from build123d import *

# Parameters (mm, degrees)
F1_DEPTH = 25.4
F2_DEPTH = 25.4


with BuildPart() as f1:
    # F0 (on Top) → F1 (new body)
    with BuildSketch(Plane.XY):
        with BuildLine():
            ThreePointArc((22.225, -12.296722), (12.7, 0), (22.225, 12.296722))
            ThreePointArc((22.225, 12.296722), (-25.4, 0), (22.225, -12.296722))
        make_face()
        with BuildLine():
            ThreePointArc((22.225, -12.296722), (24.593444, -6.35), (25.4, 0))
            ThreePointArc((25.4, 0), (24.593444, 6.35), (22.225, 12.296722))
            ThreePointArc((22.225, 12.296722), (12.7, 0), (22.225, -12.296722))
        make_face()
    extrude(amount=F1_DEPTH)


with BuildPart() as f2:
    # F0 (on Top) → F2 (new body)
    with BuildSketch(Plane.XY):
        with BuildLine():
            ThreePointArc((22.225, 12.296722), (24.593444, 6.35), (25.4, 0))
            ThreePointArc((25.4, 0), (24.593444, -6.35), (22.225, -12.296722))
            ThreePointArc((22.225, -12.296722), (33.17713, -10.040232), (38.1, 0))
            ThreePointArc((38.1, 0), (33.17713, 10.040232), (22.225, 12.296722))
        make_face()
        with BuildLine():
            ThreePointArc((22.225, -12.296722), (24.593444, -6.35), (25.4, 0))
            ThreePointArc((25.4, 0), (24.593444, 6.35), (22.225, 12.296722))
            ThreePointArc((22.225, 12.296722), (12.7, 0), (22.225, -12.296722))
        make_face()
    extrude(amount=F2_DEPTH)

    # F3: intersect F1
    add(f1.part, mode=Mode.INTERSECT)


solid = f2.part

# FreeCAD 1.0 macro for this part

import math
import FreeCAD as App
import Part
import Sketcher
from FreeCAD import Vector
Q = App.Units.Quantity

doc = App.newDocument("Part")
body = doc.addObject("PartDesign::Body", "Body")

# Sketch on XY plane
sketch1 = body.newObject("Sketcher::SketchObject", "Sketch")
sketch1.AttachmentSupport = (doc.getObject("XY_Plane"), [""])
sketch1.MapMode = "FlatFace"
sketch1.addGeometry([
    Part.ArcOfCircle(Part.Circle(Vector(0, 0, 0), Vector(0, 0, 1), 25.4), math.radians(28.955024), math.radians(331.044976)),
    Part.ArcOfCircle(Part.Circle(Vector(-0.000006, 0.000002, 0), Vector(0, 0, 1), 25.400006), math.radians(-28.955021), math.radians(-0.000004)),
    Part.ArcOfCircle(Part.Circle(Vector(-0.000006, -0.000002, 0), Vector(0, 0, 1), 25.400006), math.radians(0.000004), math.radians(28.955021)),
], False)
sketch1.addConstraint([
    Sketcher.Constraint("Tangent", 0, 2, 1, 1),
    Sketcher.Constraint("Tangent", 1, 2, 2, 1),
    Sketcher.Constraint("Tangent", 2, 2, 0, 1),
    Sketcher.Constraint("Coincident", 0, 3, -1, 1),
    Sketcher.Constraint("PointOnObject", 1, 2, -1),
    Sketcher.Constraint("Vertical", 0, 2, 2, 2),
    Sketcher.Constraint("Radius", 0, Q("1 in")),
    Sketcher.Constraint("DistanceX", -1, 1, 0, 2, Q("0.875 in")),
])
pad1 = body.newObject("PartDesign::Pad", "Pad")
pad1.Profile = sketch1
pad1.Length = Q("1 in")
body2 = doc.addObject("PartDesign::Body", "Body001")

# Sketch on XY plane
sketch2 = body2.newObject("Sketcher::SketchObject", "Sketch001")
sketch2.AttachmentSupport = (doc.getObject("XY_Plane001"), [""])
sketch2.MapMode = "FlatFace"
sketch2.addGeometry([
    Part.ArcOfCircle(Part.Circle(Vector(25.400001, -0.000001, 0), Vector(0, 0, 1), 12.699999), math.radians(-104.477517), math.radians(0.000004)),
    Part.ArcOfCircle(Part.Circle(Vector(25.400001, 0.000001, 0), Vector(0, 0, 1), 12.699999), math.radians(-0.000004), math.radians(104.477517)),
    Part.ArcOfCircle(Part.Circle(Vector(25.4, 0, 0), Vector(0, 0, 1), 12.7), math.radians(104.477512), math.radians(255.522488)),
], False)
sketch2.addConstraint([
    Sketcher.Constraint("Tangent", 0, 2, 1, 1),
    Sketcher.Constraint("Tangent", 1, 2, 2, 1),
    Sketcher.Constraint("Tangent", 2, 2, 0, 1),
    Sketcher.Constraint("Symmetric", 1, 2, 2, 2, -1),
    Sketcher.Constraint("PointOnObject", 0, 2, -1),
    Sketcher.Constraint("Radius", 0, Q("0.5 in")),
    Sketcher.Constraint("DistanceX", -1, 1, 0, 3, Q("1 in")),
    Sketcher.Constraint("DistanceX", -1, 1, 1, 2, Q("0.875 in")),
])
pad2 = body2.newObject("PartDesign::Pad", "Pad001")
pad2.Profile = sketch2
pad2.Length = Q("1 in")
doc.recompute()

boolean = body2.newObject("PartDesign::Boolean", "Boolean")
boolean.Type = "Common"
boolean.addObjects([body])

doc.recompute()
